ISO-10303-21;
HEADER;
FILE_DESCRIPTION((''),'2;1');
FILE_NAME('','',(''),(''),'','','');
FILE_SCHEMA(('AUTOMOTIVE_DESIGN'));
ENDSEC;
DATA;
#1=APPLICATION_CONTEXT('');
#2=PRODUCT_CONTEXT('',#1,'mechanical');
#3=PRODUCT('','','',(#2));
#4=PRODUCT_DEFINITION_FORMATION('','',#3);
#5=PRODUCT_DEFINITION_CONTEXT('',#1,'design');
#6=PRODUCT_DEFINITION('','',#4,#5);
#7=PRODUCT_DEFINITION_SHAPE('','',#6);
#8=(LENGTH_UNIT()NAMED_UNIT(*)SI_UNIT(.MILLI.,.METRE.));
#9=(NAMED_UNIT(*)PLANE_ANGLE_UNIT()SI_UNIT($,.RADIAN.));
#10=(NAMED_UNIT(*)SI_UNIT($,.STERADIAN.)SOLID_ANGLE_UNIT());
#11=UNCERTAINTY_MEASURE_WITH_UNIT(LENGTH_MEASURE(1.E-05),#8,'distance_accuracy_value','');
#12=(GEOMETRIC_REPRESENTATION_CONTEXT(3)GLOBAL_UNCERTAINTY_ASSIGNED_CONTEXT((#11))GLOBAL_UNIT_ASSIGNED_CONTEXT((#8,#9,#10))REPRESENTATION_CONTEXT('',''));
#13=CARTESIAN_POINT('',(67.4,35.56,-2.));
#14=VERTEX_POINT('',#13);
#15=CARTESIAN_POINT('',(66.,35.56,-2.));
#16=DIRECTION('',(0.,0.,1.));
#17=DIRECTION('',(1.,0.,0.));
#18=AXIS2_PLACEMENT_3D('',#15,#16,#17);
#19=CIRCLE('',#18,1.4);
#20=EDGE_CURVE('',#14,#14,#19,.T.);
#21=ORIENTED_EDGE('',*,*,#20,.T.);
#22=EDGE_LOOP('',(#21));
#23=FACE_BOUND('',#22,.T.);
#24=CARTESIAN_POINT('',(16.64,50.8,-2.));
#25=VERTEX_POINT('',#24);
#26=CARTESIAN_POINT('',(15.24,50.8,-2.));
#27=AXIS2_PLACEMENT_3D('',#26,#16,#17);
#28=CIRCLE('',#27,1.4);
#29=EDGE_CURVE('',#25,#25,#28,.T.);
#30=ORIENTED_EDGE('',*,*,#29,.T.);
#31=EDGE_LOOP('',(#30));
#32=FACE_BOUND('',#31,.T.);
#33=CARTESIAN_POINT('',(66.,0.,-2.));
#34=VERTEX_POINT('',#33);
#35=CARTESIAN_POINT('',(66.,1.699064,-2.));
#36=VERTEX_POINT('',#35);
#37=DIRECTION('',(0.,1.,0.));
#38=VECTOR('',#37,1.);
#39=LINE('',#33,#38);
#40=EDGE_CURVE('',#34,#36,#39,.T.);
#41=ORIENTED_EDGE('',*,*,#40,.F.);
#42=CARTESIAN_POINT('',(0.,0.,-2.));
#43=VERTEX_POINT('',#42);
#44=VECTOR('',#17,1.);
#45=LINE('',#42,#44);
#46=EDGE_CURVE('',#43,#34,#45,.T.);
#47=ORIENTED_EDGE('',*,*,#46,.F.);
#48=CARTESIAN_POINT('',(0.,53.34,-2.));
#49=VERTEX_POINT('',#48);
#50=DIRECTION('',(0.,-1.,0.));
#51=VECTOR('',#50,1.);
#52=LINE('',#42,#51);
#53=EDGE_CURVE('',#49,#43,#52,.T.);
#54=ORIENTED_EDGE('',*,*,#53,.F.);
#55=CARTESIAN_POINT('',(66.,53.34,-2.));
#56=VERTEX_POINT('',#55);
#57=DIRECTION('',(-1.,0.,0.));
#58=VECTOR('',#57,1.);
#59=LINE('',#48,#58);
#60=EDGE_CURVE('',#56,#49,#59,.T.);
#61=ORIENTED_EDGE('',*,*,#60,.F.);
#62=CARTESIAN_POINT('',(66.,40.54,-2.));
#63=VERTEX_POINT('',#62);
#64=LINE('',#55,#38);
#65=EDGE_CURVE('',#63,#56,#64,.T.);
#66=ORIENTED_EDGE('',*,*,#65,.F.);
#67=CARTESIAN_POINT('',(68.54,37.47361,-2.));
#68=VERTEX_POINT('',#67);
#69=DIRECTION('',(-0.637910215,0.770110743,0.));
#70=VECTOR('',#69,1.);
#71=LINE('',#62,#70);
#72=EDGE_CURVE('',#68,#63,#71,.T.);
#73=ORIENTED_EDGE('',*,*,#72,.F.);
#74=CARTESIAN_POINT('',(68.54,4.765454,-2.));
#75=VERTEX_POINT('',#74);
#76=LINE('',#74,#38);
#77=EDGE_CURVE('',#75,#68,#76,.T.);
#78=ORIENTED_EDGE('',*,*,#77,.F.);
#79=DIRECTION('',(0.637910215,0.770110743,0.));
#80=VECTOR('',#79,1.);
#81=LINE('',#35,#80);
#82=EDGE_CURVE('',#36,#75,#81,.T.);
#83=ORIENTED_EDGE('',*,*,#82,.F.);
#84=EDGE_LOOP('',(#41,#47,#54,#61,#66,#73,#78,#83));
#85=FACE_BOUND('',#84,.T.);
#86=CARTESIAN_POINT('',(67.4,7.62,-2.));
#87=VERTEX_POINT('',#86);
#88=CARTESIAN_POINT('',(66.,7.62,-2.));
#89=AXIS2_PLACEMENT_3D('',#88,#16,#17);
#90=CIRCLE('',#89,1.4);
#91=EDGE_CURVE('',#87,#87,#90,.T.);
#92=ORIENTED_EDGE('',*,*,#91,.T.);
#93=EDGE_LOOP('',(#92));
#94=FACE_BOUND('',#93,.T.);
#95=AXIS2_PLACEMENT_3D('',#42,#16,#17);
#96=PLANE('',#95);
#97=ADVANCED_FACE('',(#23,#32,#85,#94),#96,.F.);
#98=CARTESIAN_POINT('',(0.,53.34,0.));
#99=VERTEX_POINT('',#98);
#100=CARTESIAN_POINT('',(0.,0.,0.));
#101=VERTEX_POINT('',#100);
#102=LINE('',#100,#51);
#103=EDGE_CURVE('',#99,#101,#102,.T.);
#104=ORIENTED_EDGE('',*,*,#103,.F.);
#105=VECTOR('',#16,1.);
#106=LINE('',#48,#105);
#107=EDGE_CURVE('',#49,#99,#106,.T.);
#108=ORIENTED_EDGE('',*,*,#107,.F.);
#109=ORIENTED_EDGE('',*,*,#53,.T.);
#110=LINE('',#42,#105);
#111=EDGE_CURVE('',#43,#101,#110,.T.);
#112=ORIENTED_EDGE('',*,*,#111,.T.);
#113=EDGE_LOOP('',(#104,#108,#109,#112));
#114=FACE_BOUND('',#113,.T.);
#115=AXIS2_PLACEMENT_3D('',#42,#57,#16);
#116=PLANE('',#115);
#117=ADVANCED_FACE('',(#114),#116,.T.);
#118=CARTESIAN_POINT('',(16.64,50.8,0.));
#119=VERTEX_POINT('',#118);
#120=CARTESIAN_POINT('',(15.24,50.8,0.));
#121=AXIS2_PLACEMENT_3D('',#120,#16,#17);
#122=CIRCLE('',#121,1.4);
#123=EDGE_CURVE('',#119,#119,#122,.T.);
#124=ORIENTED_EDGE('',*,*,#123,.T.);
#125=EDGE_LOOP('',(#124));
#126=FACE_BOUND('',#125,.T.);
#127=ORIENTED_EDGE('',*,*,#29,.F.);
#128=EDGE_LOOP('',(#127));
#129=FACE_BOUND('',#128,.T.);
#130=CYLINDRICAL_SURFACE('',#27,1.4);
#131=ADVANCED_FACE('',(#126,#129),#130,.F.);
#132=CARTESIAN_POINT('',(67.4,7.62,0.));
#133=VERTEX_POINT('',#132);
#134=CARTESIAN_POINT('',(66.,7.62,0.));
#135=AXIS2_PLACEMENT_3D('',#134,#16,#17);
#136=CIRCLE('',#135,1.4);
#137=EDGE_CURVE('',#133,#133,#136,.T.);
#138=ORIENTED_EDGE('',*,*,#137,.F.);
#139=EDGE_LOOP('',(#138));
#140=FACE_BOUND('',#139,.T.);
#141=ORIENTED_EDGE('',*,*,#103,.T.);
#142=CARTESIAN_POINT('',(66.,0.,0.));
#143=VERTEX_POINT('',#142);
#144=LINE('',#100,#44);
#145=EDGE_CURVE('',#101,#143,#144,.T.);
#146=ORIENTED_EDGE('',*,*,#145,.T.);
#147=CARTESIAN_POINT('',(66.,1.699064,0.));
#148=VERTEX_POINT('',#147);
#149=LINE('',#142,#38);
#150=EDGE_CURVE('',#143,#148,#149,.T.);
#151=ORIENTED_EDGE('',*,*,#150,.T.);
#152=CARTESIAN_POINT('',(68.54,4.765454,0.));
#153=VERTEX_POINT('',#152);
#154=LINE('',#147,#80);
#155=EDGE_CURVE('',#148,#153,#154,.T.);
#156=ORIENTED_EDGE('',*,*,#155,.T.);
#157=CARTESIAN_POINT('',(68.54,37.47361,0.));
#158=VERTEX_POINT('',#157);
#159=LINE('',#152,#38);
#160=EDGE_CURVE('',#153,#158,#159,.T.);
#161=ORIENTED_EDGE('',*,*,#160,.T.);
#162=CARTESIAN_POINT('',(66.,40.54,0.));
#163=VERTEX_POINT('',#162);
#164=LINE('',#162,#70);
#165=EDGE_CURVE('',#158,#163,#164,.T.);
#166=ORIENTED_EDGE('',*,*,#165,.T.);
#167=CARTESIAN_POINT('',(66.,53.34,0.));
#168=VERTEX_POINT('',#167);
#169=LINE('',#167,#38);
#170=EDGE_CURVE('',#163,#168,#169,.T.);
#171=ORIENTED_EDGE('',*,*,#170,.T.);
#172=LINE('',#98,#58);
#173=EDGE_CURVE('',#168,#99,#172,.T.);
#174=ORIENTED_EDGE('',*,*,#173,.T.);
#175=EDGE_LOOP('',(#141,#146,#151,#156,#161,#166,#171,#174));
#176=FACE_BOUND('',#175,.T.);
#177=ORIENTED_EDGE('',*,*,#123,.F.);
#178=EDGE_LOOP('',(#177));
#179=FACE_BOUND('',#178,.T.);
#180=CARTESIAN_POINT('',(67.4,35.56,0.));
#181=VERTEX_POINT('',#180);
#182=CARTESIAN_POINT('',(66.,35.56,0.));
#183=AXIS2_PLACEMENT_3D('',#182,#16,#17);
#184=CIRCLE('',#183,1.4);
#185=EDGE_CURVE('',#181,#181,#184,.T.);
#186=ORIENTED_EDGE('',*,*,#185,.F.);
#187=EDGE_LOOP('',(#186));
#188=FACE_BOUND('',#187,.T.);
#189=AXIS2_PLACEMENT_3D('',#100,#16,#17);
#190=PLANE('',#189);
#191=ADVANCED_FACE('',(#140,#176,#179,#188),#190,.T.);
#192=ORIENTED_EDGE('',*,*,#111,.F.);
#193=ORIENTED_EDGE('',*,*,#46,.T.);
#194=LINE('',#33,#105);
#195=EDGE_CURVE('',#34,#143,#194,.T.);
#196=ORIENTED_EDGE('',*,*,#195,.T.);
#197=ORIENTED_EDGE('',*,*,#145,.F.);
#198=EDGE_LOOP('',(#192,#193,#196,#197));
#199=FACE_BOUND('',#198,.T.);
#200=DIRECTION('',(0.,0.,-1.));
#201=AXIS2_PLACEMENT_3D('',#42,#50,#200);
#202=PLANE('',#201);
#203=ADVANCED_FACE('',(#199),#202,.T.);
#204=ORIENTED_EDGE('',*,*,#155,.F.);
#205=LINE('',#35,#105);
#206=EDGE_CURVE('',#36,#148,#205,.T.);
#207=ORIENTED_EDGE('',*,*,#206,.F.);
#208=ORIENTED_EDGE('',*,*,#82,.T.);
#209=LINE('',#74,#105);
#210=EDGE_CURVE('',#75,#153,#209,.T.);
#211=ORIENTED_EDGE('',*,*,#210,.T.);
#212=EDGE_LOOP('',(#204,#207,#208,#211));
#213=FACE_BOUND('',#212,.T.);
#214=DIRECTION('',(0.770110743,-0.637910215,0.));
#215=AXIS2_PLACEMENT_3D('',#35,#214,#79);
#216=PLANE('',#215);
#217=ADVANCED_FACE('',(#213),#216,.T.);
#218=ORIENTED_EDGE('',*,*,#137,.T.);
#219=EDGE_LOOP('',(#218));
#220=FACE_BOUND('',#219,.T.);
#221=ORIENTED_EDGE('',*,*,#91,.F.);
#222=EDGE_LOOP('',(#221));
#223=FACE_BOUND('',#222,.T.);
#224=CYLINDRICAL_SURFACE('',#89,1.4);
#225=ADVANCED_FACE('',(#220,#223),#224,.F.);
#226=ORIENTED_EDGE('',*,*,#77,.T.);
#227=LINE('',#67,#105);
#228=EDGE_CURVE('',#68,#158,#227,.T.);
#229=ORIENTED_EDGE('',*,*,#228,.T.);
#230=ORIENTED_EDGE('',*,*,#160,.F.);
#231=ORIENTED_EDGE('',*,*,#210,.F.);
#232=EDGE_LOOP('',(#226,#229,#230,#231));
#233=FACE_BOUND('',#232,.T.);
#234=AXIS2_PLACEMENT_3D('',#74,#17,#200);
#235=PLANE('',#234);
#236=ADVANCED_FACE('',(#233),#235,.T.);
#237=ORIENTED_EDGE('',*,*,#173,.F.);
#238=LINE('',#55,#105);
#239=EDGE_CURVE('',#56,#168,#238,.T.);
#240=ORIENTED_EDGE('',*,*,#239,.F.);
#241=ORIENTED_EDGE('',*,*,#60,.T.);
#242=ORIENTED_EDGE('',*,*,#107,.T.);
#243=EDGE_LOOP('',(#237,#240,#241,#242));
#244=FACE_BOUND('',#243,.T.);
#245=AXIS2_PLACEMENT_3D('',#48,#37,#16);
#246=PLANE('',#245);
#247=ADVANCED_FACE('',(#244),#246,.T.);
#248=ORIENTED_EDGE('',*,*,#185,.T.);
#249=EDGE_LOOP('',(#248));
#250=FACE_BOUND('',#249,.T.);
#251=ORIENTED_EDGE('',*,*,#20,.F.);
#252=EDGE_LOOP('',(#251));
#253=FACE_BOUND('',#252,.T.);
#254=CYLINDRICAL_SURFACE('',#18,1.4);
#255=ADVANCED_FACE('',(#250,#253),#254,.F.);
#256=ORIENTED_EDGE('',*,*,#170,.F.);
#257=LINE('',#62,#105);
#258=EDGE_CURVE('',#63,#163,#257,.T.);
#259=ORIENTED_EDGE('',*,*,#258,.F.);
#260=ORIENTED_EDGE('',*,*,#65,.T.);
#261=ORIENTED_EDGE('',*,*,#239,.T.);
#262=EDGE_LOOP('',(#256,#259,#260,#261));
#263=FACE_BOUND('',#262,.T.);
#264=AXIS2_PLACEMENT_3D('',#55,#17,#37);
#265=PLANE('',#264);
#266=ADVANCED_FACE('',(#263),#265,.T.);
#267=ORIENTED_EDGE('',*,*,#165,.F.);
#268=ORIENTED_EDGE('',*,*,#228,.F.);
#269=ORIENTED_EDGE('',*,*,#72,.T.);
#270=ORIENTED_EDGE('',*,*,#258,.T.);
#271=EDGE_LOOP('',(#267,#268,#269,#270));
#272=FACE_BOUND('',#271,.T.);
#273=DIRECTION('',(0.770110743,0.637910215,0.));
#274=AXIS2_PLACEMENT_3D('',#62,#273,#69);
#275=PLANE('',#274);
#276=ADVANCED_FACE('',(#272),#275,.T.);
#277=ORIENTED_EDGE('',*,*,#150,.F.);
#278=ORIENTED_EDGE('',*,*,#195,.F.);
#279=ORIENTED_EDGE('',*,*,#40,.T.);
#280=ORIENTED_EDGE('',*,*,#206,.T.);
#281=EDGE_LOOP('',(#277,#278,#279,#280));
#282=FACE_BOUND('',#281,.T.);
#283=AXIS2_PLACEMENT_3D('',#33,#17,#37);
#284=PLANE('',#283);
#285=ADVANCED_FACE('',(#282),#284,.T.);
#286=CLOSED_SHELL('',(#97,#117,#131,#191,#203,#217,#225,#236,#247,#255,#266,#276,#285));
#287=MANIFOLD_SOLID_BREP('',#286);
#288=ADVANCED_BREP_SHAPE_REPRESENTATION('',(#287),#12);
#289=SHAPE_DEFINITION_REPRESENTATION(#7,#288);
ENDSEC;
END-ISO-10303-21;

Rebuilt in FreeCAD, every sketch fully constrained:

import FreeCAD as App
import Part
import Sketcher
from FreeCAD import Vector


def add_polygon(sketch, points):
    """Adds a closed chain of lines whose ends are joined by coincident constraints."""
    first, n = sketch.GeometryCount, len(points)
    for a, b in zip(points, points[1:] + points[:1]):
        sketch.addGeometry(Part.LineSegment(App.Vector(*a, 0), App.Vector(*b, 0)), False)
    for i in range(n):
        sketch.addConstraint(Sketcher.Constraint("Coincident", first + i, 2, first + (i + 1) % n, 1))

doc = App.newDocument("Part")
body = doc.addObject("PartDesign::Body", "Body")

# Sketch on XY plane
sketch1 = body.newObject("Sketcher::SketchObject", "Sketch")
sketch1.AttachmentSupport = (doc.getObject("XY_Plane"), [""])
sketch1.MapMode = "FlatFace"
add_polygon(sketch1, [(0, 53.34), (0, 0), (66, 0), (66, 1.699064), (68.54, 4.765454), (68.54, 37.47361), (66, 40.54), (66, 53.34)])  # lines 0-7
sketch1.addGeometry(Part.Circle(Vector(66, 7.62, 0), Vector(0, 0, 1), 1.4), False)  # 8
sketch1.addGeometry(Part.Circle(Vector(66, 35.56, 0), Vector(0, 0, 1), 1.4), False)  # 9
sketch1.addGeometry(Part.Circle(Vector(15.24, 50.8, 0), Vector(0, 0, 1), 1.4), False)  # 10
sketch1.addConstraint(Sketcher.Constraint("Vertical", 0))
sketch1.addConstraint(Sketcher.Constraint("Horizontal", 1))
sketch1.addConstraint(Sketcher.Constraint("Vertical", 2))
sketch1.addConstraint(Sketcher.Constraint("Vertical", 4))
sketch1.addConstraint(Sketcher.Constraint("Vertical", 6))
sketch1.addConstraint(Sketcher.Constraint("Horizontal", 7))
sketch1.addConstraint(Sketcher.Constraint("Coincident", 0, 2, -1, 1))
sketch1.addConstraint(Sketcher.Constraint("Equal", 8, 9))
sketch1.addConstraint(Sketcher.Constraint("Equal", 9, 10))
sketch1.addConstraint(Sketcher.Constraint("Vertical", 8, 3, 9, 3))
sketch1.addConstraint(Sketcher.Constraint("Vertical", 9, 3, 1, 2))
sketch1.addConstraint(Sketcher.Constraint("Vertical", 2, 2, 5, 2))
sketch1.addConstraint(Sketcher.Constraint("Equal", 3, 5))
sketch1.addConstraint(Sketcher.Constraint("Diameter", 8, 2.8))
sketch1.addConstraint(Sketcher.Constraint("DistanceX", 1, 1, 1, 2, 66.0))
sketch1.addConstraint(Sketcher.Constraint("DistanceY", 6, 1, 6, 2, 12.8))
sketch1.addConstraint(Sketcher.Constraint("DistanceY", 0, 2, 0, 1, 53.34))
sketch1.addConstraint(Sketcher.Constraint("DistanceY", -1, 1, 10, 3, 50.8))
sketch1.addConstraint(Sketcher.Constraint("DistanceY", -1, 1, 8, 3, 7.62))
sketch1.addConstraint(Sketcher.Constraint("DistanceY", -1, 1, 9, 3, 35.56))
sketch1.addConstraint(Sketcher.Constraint("DistanceX", -1, 1, 10, 3, 15.24))
sketch1.addConstraint(Sketcher.Constraint("DistanceX", -1, 1, 3, 2, 68.54))
sketch1.addConstraint(Sketcher.Constraint("Distance", 3, 3.981752))
sketch1.addConstraint(Sketcher.Constraint("DistanceY", 2, 1, 2, 2, 1.699064))
pad1 = body.newObject("PartDesign::Pad", "Pad")
pad1.Profile = sketch1
pad1.Length = 2
pad1.Reversed = True

doc.recompute()
